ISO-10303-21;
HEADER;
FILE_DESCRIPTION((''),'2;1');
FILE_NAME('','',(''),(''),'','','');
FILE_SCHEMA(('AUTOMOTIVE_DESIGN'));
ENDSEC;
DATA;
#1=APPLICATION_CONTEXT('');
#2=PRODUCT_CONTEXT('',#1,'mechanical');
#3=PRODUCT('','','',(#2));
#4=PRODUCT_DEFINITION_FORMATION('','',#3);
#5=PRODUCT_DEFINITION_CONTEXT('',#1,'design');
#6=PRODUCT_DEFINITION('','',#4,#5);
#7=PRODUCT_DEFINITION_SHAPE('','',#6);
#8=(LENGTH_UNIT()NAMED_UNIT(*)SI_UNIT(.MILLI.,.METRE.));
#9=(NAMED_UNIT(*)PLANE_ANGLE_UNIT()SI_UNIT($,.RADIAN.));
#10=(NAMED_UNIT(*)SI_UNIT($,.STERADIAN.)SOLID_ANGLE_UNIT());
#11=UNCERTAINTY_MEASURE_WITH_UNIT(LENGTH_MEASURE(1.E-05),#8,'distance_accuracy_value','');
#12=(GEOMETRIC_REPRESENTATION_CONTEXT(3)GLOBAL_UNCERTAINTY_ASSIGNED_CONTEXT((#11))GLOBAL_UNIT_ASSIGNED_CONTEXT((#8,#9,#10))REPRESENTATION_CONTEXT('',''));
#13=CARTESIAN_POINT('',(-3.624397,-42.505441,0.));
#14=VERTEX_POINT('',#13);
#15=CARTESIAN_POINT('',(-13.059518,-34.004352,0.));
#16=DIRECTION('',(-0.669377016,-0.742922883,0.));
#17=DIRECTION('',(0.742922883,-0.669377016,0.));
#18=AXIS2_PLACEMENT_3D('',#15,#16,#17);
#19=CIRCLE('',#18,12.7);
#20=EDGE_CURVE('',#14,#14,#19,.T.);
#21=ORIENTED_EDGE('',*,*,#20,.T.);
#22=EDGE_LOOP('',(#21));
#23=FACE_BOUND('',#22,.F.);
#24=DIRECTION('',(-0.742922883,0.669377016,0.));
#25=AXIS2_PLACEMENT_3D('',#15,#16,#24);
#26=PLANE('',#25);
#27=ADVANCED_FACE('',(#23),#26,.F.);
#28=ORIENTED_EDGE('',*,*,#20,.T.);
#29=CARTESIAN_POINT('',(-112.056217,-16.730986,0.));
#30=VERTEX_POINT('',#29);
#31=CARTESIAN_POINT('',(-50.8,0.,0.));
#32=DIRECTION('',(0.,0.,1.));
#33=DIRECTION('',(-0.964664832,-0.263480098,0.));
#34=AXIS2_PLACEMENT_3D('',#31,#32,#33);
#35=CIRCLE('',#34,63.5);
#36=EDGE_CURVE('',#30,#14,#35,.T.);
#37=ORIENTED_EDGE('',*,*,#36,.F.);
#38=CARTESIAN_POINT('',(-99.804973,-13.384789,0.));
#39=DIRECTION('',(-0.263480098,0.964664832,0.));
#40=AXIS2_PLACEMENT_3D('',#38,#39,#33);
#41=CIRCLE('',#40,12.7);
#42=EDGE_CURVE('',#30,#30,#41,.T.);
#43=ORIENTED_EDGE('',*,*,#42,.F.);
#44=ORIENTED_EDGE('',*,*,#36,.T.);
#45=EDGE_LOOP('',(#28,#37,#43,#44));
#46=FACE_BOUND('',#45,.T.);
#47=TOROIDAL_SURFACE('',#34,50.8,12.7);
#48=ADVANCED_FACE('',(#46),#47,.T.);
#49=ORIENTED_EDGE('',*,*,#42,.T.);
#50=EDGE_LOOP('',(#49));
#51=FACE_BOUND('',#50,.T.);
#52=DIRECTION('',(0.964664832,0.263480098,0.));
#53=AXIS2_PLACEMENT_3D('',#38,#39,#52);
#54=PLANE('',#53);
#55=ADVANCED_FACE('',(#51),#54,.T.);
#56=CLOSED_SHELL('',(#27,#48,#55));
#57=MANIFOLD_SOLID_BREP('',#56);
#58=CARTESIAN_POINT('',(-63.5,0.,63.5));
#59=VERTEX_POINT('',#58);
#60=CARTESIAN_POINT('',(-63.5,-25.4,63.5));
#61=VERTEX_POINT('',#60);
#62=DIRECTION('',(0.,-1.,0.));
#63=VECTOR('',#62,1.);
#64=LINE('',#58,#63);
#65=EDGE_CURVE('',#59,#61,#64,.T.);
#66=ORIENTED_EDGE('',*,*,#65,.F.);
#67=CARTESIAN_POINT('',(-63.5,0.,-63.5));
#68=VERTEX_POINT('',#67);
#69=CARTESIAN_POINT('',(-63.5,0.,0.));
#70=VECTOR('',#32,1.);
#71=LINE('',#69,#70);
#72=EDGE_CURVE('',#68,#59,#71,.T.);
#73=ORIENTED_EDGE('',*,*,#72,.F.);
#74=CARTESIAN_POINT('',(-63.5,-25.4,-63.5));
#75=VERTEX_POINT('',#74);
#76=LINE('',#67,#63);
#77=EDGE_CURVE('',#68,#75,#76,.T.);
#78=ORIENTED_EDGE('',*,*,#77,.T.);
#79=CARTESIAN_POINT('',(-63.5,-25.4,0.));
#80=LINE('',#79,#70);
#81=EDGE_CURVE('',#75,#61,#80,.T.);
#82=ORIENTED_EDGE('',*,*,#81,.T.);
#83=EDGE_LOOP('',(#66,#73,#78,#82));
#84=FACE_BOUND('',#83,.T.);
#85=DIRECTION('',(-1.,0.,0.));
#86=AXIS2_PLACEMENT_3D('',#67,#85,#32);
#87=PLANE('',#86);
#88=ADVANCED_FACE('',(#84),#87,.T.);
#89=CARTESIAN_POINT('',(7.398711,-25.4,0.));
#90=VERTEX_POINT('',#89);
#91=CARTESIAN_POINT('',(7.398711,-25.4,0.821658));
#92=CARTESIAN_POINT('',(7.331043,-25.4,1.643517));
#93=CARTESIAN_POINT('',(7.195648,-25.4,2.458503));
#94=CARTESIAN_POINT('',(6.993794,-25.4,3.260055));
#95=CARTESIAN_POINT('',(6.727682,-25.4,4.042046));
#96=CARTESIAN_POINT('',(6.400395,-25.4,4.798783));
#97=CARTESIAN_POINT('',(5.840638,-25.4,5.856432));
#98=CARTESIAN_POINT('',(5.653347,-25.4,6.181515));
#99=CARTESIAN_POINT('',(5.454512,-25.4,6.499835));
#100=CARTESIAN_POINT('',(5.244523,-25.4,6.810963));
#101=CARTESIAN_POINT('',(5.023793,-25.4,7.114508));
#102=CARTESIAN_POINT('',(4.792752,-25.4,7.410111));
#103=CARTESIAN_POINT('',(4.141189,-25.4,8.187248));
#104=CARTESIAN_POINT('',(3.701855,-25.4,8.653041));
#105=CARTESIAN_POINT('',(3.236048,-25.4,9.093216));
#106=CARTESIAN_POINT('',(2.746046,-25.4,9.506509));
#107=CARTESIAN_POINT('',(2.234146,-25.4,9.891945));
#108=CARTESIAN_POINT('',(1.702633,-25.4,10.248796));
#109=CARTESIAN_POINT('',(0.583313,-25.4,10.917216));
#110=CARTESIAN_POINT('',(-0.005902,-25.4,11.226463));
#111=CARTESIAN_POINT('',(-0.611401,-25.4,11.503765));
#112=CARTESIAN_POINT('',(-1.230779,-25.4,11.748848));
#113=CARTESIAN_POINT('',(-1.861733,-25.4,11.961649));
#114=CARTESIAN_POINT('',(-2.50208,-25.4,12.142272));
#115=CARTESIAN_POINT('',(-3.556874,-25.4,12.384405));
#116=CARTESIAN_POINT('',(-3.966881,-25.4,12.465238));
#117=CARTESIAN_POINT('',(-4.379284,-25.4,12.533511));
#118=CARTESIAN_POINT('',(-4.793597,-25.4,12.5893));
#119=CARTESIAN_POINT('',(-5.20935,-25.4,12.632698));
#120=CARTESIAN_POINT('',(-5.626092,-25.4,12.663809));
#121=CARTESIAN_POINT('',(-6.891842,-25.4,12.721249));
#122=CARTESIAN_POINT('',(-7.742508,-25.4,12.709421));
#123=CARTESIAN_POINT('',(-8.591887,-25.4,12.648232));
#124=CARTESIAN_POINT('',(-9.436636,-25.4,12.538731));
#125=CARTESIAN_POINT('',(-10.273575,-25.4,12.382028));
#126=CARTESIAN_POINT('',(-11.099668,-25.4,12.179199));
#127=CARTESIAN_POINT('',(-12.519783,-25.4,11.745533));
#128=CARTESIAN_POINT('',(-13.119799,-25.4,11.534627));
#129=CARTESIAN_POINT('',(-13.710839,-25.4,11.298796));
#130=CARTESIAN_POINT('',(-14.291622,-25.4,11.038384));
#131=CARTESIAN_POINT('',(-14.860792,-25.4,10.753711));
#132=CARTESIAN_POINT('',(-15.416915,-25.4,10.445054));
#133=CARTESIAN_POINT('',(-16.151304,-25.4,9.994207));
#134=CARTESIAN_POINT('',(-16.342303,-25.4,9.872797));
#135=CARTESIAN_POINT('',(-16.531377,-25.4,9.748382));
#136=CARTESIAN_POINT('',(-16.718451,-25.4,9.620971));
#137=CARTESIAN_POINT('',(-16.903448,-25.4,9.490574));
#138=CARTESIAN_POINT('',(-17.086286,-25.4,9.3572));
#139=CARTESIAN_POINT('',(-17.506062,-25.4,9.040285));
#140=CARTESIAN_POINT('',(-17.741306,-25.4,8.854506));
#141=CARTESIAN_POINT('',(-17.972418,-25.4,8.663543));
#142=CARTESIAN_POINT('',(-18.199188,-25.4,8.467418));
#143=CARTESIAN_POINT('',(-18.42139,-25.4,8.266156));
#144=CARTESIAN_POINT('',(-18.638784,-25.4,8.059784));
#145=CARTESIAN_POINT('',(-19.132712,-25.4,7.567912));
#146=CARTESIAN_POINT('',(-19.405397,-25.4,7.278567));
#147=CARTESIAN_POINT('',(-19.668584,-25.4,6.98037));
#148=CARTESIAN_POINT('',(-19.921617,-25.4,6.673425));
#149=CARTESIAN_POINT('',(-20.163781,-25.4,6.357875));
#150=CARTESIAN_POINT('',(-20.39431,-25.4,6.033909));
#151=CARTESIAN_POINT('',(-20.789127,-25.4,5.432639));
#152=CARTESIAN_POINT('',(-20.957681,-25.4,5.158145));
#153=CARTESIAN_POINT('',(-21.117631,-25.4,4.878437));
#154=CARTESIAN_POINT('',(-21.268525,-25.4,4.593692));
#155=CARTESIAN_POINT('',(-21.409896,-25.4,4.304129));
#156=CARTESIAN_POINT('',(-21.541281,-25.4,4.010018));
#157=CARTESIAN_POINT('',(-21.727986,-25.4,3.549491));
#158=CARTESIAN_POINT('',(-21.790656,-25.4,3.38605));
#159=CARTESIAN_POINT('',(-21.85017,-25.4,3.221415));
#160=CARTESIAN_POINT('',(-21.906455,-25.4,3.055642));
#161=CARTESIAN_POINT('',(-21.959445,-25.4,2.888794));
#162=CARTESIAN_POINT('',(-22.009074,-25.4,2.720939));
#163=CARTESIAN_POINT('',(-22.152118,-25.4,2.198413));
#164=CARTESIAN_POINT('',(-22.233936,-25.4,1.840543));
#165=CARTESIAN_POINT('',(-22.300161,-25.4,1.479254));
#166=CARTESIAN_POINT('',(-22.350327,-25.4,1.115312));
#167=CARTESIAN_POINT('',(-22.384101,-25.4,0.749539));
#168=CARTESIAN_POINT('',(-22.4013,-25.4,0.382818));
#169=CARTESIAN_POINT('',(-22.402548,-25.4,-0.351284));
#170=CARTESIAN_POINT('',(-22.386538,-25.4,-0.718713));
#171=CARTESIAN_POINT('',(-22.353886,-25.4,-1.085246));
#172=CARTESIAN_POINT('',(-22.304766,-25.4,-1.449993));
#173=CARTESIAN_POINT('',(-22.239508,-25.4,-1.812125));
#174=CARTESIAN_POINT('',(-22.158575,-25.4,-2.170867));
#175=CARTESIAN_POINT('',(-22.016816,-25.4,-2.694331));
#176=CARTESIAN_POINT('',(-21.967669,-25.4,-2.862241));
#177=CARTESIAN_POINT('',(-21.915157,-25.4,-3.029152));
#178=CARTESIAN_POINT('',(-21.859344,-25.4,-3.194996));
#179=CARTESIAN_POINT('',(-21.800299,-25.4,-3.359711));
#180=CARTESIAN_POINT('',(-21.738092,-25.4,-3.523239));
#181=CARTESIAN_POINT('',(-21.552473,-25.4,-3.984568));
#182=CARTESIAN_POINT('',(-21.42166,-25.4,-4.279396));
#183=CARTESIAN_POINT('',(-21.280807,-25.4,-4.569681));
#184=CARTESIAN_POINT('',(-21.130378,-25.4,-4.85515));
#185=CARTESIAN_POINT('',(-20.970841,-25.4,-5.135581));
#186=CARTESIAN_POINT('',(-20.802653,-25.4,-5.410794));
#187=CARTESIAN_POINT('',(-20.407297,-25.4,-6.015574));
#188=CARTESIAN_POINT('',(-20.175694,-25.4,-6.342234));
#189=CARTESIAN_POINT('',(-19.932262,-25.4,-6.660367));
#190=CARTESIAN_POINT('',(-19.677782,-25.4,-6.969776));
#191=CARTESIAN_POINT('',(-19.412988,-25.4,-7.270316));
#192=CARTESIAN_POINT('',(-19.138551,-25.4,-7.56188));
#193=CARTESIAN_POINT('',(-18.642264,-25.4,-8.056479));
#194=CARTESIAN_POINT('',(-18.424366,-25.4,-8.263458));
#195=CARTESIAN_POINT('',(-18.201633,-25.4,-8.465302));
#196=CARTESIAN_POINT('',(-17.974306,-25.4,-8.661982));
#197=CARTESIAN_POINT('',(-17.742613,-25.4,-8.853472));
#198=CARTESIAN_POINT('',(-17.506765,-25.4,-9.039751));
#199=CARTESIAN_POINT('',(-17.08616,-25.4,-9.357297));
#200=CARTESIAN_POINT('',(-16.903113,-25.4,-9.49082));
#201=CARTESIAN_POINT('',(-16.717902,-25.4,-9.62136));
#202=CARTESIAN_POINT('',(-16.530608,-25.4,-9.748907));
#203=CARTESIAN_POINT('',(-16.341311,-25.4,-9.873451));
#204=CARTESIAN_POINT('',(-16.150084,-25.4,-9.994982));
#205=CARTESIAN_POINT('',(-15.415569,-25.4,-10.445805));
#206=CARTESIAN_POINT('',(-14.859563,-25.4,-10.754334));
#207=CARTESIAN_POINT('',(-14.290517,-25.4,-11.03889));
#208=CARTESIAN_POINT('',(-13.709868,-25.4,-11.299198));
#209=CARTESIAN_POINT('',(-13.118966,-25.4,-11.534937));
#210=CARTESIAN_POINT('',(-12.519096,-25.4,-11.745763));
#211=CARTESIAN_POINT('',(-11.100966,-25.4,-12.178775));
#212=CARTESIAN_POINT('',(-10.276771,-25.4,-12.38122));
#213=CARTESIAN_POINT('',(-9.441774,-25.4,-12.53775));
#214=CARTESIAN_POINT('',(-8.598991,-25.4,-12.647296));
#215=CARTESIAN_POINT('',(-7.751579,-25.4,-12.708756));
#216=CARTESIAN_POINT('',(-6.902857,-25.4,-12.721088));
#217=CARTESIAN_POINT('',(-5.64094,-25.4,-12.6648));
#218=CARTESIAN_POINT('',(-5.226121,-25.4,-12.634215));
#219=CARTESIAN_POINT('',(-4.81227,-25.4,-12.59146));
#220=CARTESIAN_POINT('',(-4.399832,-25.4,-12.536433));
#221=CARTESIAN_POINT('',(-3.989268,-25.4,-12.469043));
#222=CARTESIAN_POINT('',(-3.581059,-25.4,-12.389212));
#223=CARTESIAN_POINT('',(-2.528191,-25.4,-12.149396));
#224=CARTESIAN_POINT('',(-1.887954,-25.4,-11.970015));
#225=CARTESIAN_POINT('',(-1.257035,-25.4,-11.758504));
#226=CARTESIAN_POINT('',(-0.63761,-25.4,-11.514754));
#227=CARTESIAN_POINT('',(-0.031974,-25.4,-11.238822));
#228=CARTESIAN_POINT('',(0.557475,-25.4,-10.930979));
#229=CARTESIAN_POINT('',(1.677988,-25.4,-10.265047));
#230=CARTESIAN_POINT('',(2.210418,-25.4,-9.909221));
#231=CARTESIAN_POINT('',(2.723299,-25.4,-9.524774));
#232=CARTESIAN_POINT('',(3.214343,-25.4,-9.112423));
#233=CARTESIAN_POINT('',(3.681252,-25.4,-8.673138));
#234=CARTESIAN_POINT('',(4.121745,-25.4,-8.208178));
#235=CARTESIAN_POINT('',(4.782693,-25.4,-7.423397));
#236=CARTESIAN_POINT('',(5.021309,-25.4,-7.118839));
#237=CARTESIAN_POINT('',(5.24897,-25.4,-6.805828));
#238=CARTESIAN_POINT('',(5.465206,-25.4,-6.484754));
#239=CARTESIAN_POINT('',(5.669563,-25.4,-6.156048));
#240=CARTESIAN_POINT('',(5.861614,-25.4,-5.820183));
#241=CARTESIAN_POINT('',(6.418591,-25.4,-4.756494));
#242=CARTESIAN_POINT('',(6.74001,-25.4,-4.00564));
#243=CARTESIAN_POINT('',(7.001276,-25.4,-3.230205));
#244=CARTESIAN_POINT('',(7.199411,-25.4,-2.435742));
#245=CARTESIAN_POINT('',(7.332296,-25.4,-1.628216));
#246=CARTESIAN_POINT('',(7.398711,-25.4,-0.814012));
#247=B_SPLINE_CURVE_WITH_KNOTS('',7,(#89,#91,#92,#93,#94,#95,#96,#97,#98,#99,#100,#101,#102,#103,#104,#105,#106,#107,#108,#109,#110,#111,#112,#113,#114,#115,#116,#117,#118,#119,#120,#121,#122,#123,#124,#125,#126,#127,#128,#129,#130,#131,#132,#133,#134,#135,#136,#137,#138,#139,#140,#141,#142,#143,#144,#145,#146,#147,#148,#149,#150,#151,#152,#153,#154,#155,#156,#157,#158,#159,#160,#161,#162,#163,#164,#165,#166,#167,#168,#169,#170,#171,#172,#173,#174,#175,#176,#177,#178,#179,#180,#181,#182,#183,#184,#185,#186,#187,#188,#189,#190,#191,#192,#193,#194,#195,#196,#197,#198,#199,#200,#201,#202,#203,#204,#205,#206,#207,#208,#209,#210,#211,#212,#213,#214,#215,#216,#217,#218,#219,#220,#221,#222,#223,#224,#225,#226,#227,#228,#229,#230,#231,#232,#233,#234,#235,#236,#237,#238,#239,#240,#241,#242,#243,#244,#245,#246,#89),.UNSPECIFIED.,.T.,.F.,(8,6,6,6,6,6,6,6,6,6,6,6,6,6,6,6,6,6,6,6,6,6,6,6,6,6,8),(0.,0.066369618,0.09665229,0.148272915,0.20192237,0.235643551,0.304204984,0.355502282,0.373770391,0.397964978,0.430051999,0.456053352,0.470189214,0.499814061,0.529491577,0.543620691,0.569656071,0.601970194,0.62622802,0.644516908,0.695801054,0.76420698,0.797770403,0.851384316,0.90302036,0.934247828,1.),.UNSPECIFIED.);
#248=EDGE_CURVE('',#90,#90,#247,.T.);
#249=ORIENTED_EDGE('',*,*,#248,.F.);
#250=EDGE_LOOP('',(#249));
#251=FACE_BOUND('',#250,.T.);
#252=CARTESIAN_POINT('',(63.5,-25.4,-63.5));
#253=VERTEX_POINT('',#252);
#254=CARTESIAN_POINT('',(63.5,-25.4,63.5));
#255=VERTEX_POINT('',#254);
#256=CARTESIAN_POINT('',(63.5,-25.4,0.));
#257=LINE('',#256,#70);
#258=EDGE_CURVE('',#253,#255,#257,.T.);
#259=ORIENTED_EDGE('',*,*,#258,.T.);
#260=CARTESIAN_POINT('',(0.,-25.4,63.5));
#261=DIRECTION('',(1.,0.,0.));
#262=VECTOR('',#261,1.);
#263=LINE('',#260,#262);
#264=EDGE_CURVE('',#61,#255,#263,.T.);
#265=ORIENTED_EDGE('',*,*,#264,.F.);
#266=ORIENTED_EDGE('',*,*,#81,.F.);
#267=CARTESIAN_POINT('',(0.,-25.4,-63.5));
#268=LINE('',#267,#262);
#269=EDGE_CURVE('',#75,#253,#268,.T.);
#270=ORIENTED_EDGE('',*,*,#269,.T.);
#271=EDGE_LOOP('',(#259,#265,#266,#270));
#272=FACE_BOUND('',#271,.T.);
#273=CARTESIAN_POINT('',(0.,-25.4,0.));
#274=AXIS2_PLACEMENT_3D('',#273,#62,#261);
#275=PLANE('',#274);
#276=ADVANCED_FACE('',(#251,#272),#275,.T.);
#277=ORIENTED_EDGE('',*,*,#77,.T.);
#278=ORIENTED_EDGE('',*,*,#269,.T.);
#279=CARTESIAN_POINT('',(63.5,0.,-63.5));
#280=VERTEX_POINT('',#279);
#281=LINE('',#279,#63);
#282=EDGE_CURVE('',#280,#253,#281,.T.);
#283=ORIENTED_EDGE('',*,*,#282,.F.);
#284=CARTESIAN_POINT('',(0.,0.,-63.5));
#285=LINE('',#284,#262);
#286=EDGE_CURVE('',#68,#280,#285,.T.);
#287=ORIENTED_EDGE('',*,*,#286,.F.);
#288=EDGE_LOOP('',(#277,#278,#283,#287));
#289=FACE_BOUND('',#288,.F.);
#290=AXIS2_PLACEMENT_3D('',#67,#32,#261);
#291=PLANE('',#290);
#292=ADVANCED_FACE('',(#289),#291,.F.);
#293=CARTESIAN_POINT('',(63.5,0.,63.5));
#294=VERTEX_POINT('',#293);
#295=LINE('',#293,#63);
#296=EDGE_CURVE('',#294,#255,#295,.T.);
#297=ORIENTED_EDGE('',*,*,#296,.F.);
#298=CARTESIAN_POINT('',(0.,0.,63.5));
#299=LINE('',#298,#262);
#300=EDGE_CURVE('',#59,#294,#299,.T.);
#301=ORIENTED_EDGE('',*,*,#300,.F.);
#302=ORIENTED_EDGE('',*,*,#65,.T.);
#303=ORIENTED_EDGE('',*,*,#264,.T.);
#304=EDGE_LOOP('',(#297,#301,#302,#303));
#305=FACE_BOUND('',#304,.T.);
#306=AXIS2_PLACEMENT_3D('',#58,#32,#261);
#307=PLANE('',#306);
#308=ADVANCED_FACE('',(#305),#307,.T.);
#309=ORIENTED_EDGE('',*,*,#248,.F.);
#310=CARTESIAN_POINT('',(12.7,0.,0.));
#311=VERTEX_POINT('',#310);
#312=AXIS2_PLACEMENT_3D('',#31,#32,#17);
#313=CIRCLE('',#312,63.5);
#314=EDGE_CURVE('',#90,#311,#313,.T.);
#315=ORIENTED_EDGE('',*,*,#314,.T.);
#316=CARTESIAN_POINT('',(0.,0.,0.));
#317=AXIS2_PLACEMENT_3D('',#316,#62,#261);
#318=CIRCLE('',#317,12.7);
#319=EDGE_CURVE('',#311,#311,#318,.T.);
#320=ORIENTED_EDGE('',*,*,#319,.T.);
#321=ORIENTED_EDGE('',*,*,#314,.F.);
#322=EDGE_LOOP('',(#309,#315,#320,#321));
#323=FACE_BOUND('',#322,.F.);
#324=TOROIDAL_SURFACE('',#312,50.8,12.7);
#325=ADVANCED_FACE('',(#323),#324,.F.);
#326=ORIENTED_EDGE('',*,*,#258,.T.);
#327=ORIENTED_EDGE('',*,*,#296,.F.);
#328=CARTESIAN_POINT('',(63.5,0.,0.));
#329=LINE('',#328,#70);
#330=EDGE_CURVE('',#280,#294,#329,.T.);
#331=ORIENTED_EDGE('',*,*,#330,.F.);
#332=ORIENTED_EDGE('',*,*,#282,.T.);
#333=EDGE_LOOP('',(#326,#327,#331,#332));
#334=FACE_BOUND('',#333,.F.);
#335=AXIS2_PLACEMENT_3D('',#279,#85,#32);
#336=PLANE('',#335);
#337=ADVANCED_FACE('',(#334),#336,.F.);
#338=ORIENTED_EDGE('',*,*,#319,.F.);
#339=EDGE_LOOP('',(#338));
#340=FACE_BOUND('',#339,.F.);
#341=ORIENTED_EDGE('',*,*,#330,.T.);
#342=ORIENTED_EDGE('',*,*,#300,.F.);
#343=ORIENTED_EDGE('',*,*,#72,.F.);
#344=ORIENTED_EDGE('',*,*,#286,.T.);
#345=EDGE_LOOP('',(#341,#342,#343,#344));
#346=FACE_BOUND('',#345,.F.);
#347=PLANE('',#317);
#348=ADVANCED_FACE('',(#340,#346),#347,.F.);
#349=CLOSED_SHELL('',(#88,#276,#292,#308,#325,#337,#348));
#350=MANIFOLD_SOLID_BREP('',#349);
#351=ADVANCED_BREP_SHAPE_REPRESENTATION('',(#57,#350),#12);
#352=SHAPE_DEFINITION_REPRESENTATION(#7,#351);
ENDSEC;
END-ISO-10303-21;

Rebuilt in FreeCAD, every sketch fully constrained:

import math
import FreeCAD as App
import Part
import Sketcher
from FreeCAD import Vector
Q = App.Units.Quantity


def add_polygon(sketch, points):
    """Adds a closed chain of lines whose ends are joined by coincident constraints."""
    first, n = sketch.GeometryCount, len(points)
    for a, b in zip(points, points[1:] + points[:1]):
        sketch.addGeometry(Part.LineSegment(App.Vector(*a, 0), App.Vector(*b, 0)), False)
    for i in range(n):
        sketch.addConstraint(Sketcher.Constraint("Coincident", first + i, 2, first + (i + 1) % n, 1))

doc = App.newDocument("Part")
params = doc.addObject("Spreadsheet::Sheet", "Params")
for row, (alias, value) in enumerate([
    ("sketch1_width", "5 in"),
    ("pad1_length", "1 in"),
    ("sketch2_diameter", "1 in"),
    ("sketch3_radius", "2 in"),
    ("sketch4_diameter", "1 in"),
    ("sketch5_radius", "2 in"),
], start=1):
    params.set(f"A{row}", alias)
    params.set(f"B{row}", "=" + value)
    params.setAlias(f"B{row}", alias)

body = doc.addObject("PartDesign::Body", "Body")

# Sketch on XZ plane
sketch1 = body.newObject("Sketcher::SketchObject", "Sketch")
sketch1.AttachmentSupport = (doc.getObject("XZ_Plane"), [""])
sketch1.MapMode = "FlatFace"
add_polygon(sketch1, [(-63.5, 63.5), (-63.5, -63.5), (63.5, -63.5), (63.5, 63.5)])  # lines 0-3
sketch1.addConstraint([
    Sketcher.Constraint("Vertical", 0),
    Sketcher.Constraint("Horizontal", 1),
    Sketcher.Constraint("Vertical", 2),
    Sketcher.Constraint("Horizontal", 3),
    Sketcher.Constraint("Symmetric", 0, 2, 2, 2, -1, 1),
    Sketcher.Constraint("Equal", 3, 0),
    Sketcher.Constraint("DistanceX", 1, 1, 1, 2, Q("5 in")),
])
sketch1.setExpression("Constraints[10]", "Params.sketch1_width")
pad1 = body.newObject("PartDesign::Pad", "Pad")
pad1.Profile = sketch1
pad1.setExpression("Length", "Params.pad1_length")
body2 = doc.addObject("PartDesign::Body", "Body001")

# Sketch on XZ plane
sketch2 = body2.newObject("Sketcher::SketchObject", "Sketch001")
sketch2.AttachmentSupport = (doc.getObject("XZ_Plane001"), [""])
sketch2.MapMode = "FlatFace"
sketch2.addGeometry(Part.Circle(Vector(0, 0, 0), Vector(0, 0, 1), 12.7), False)
sketch2.addConstraint([
    Sketcher.Constraint("Coincident", 0, 3, -1, 1),
    Sketcher.Constraint("Diameter", 0, Q("1 in")),
])
sketch2.setExpression("Constraints[1]", "Params.sketch2_diameter")

# Sketch on XY plane
sketch3 = body2.newObject("Sketcher::SketchObject", "Sketch002")
sketch3.AttachmentSupport = (doc.getObject("XY_Plane001"), [""])
sketch3.MapMode = "FlatFace"
sketch3.addGeometry(Part.ArcOfCircle(Part.Circle(Vector(-50.8, 0, 0), Vector(0, 0, 1), 50.8), math.radians(-164.72334), math.radians(0)), False)
sketch3.addConstraint([
    Sketcher.Constraint("Coincident", 0, 2, -1, 1),
    Sketcher.Constraint("PointOnObject", 0, 3, -1),
    Sketcher.Constraint("Radius", 0, Q("2 in")),
    Sketcher.Constraint("DistanceY", 0, 1, -1, 1, 13.384789),
])
sketch3.setExpression("Constraints[2]", "Params.sketch3_radius")
doc.recompute()

additivepipe = body2.newObject("PartDesign::AdditivePipe", "AdditivePipe")
additivepipe.Profile = sketch2
additivepipe.Spine = (sketch3, ["Edge1"])
body3 = doc.addObject("PartDesign::Body", "Body002")

# Sketch on XZ plane
sketch4 = body3.newObject("Sketcher::SketchObject", "Sketch003")
sketch4.AttachmentSupport = (doc.getObject("XZ_Plane002"), [""])
sketch4.MapMode = "FlatFace"
sketch4.addGeometry(Part.Circle(Vector(0, 0, 0), Vector(0, 0, 1), 12.7), False)
sketch4.addConstraint([
    Sketcher.Constraint("Coincident", 0, 3, -1, 1),
    Sketcher.Constraint("Diameter", 0, Q("1 in")),
])
sketch4.setExpression("Constraints[1]", "Params.sketch4_diameter")

# Sketch on XY plane
sketch5 = body3.newObject("Sketcher::SketchObject", "Sketch004")
sketch5.AttachmentSupport = (doc.getObject("XY_Plane002"), [""])
sketch5.MapMode = "FlatFace"
sketch5.addGeometry(Part.ArcOfCircle(Part.Circle(Vector(-50.8, 0, 0), Vector(0, 0, 1), 50.8), math.radians(-42.019001), math.radians(0)), False)
sketch5.addConstraint([
    Sketcher.Constraint("Coincident", 0, 2, -1, 1),
    Sketcher.Constraint("PointOnObject", 0, 3, -1),
    Sketcher.Constraint("Radius", 0, Q("2 in")),
    Sketcher.Constraint("DistanceX", 0, 1, -1, 1, 13.059518),
])
sketch5.setExpression("Constraints[2]", "Params.sketch5_radius")
doc.recompute()

additivepipe2 = body3.newObject("PartDesign::AdditivePipe", "AdditivePipe001")
additivepipe2.Profile = sketch4
additivepipe2.Spine = (sketch5, ["Edge1"])
doc.recompute()

body4 = doc.addObject("PartDesign::Body", "Body003")
body4.BaseFeature = body3
boolean = body.newObject("PartDesign::Boolean", "Boolean")
boolean.Type = "Cut"
boolean.addObjects([body4])
doc.recompute()

boolean2 = body2.newObject("PartDesign::Boolean", "Boolean001")
boolean2.Type = "Cut"
boolean2.addObjects([body3])

doc.recompute()
